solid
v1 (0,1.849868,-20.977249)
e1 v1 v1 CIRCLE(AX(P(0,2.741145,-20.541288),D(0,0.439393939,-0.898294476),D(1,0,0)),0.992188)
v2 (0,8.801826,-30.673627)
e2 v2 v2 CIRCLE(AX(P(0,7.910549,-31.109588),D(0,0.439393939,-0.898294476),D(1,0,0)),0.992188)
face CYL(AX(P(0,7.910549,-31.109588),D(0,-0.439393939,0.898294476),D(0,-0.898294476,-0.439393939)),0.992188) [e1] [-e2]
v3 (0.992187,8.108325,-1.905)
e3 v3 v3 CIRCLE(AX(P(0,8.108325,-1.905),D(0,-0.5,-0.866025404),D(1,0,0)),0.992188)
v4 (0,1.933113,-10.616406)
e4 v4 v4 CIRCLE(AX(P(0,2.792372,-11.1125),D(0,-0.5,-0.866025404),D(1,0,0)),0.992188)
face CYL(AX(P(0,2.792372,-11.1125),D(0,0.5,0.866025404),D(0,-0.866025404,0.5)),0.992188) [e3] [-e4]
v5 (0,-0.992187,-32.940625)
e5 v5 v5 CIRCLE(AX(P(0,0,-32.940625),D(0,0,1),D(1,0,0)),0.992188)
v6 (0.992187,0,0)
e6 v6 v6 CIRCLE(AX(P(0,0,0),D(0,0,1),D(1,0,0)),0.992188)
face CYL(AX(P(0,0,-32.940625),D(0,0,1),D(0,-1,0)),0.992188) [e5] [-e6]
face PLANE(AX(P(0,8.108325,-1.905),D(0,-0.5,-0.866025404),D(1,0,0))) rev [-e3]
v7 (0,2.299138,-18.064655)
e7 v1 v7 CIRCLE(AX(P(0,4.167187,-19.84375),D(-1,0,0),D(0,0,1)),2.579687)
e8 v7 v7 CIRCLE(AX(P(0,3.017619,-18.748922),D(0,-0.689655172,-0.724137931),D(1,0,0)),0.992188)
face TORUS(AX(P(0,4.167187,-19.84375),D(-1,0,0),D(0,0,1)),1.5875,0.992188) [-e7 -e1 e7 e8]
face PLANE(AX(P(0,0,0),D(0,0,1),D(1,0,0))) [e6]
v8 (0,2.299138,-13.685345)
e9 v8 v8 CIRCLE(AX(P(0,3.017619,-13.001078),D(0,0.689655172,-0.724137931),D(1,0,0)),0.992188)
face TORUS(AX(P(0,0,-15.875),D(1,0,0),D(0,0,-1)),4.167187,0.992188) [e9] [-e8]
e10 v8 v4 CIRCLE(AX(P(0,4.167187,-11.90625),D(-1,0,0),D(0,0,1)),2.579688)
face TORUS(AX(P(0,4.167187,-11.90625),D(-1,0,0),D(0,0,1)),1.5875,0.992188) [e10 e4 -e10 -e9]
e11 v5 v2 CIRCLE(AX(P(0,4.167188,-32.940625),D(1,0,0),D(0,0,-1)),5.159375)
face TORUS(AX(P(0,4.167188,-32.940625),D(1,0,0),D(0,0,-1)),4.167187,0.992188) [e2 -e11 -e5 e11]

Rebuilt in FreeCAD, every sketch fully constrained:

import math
import FreeCAD as App
import Part
import Sketcher
Q = App.Units.Quantity

doc = App.newDocument("Part")
params = doc.addObject("Spreadsheet::Sheet", "Params")
for row, (alias, value) in enumerate([
    ("sketch1_diameter", "0.078125 in"),
    ("sketch2_radius", "0.0625 in"),
    ("sketch2_height", "1.296875 in"),
], start=1):
    params.set(f"A{row}", alias)
    params.set(f"B{row}", "=" + value)
    params.setAlias(f"B{row}", alias)

body = doc.addObject("PartDesign::Body", "Body")

# Sketch on XY plane
sketch1 = body.newObject("Sketcher::SketchObject", "Sketch")
sketch1.AttachmentSupport = (doc.getObject("XY_Plane"), [""])
sketch1.MapMode = "FlatFace"
sketch1.addGeometry(Part.Circle(App.Vector(0, 0, 0), App.Vector(0, 0, 1), 1), False)
sketch1.addConstraint([
    Sketcher.Constraint("Coincident", 0, 3, -1, 1),
    Sketcher.Constraint("Diameter", 0, Q("0.078125 in")),
])
sketch1.setExpression("Constraints[1]", "Params.sketch1_diameter")

# Sketch on YZ plane
sketch2 = body.newObject("Sketcher::SketchObject", "Sketch001")
sketch2.AttachmentSupport = (doc.getObject("YZ_Plane"), [""])
sketch2.MapMode = "FlatFace"
sketch2.addGeometry([
    Part.LineSegment(App.Vector(0, 0, 0), App.Vector(0, -32.9, 0)),  # 0
    Part.ArcOfCircle(Part.Circle(App.Vector(4.2, -32.9, 0), App.Vector(0, 0, 1), 4.2), math.radians(180), math.radians(386)),  # 1
    Part.LineSegment(App.Vector(7.9, -31.1, 0), App.Vector(2.7, -20.5, 0)),  # 2
    Part.ArcOfCircle(Part.Circle(App.Vector(4.2, -19.8, 0), App.Vector(0, 0, 1), 1.6), math.radians(136), math.radians(206)),  # 3
    Part.ArcOfCircle(Part.Circle(App.Vector(0, -15.9, 0), App.Vector(0, 0, 1), 4.2), math.radians(-44), math.radians(44)),  # 4
    Part.ArcOfCircle(Part.Circle(App.Vector(4.2, -11.9, 0), App.Vector(0, 0, 1), 1.6), math.radians(150), math.radians(224)),  # 5
    Part.LineSegment(App.Vector(2.8, -11.1, 0), App.Vector(8.1, -1.9, 0)),  # 6
], False)
sketch2.addConstraint([
    Sketcher.Constraint("Tangent", 0, 2, 1, 1),
    Sketcher.Constraint("Tangent", 1, 2, 2, 1),
    Sketcher.Constraint("Tangent", 2, 2, 3, 2),
    Sketcher.Constraint("Tangent", 3, 1, 4, 1),
    Sketcher.Constraint("Tangent", 4, 2, 5, 2),
    Sketcher.Constraint("Tangent", 5, 1, 6, 1),
    Sketcher.Constraint("Vertical", 0),
    Sketcher.Constraint("Coincident", 0, 1, -1, 1),
    Sketcher.Constraint("Equal", 1, 4),
    Sketcher.Constraint("Equal", 3, 5),
    Sketcher.Constraint("PointOnObject", 4, 3, -2),
    Sketcher.Constraint("Vertical", 1, 3, 3, 3),
    Sketcher.Constraint("Vertical", 3, 3, 5, 3),
    Sketcher.Constraint("Angle", 6, Q("60 deg")),
    Sketcher.Constraint("Radius", 3, Q("0.0625 in")),
    Sketcher.Constraint("DistanceY", 0, 2, 0, 1, Q("1.296875 in")),
    Sketcher.Constraint("DistanceY", 4, 3, 6, 2, Q("0.55 in")),
    Sketcher.Constraint("DistanceY", 3, 3, -1, 1, Q("0.78125 in")),
    Sketcher.Constraint("DistanceY", 4, 3, -1, 1, Q("0.625 in")),
])
sketch2.setExpression("Constraints[14]", "Params.sketch2_radius")
sketch2.setExpression("Constraints[15]", "Params.sketch2_height")
doc.recompute()

additivepipe = body.newObject("PartDesign::AdditivePipe", "AdditivePipe")
additivepipe.Profile = sketch1
additivepipe.Spine = (sketch2, ["Edge1", "Edge2", "Edge3", "Edge4", "Edge5", "Edge6", "Edge7"])

doc.recompute()
